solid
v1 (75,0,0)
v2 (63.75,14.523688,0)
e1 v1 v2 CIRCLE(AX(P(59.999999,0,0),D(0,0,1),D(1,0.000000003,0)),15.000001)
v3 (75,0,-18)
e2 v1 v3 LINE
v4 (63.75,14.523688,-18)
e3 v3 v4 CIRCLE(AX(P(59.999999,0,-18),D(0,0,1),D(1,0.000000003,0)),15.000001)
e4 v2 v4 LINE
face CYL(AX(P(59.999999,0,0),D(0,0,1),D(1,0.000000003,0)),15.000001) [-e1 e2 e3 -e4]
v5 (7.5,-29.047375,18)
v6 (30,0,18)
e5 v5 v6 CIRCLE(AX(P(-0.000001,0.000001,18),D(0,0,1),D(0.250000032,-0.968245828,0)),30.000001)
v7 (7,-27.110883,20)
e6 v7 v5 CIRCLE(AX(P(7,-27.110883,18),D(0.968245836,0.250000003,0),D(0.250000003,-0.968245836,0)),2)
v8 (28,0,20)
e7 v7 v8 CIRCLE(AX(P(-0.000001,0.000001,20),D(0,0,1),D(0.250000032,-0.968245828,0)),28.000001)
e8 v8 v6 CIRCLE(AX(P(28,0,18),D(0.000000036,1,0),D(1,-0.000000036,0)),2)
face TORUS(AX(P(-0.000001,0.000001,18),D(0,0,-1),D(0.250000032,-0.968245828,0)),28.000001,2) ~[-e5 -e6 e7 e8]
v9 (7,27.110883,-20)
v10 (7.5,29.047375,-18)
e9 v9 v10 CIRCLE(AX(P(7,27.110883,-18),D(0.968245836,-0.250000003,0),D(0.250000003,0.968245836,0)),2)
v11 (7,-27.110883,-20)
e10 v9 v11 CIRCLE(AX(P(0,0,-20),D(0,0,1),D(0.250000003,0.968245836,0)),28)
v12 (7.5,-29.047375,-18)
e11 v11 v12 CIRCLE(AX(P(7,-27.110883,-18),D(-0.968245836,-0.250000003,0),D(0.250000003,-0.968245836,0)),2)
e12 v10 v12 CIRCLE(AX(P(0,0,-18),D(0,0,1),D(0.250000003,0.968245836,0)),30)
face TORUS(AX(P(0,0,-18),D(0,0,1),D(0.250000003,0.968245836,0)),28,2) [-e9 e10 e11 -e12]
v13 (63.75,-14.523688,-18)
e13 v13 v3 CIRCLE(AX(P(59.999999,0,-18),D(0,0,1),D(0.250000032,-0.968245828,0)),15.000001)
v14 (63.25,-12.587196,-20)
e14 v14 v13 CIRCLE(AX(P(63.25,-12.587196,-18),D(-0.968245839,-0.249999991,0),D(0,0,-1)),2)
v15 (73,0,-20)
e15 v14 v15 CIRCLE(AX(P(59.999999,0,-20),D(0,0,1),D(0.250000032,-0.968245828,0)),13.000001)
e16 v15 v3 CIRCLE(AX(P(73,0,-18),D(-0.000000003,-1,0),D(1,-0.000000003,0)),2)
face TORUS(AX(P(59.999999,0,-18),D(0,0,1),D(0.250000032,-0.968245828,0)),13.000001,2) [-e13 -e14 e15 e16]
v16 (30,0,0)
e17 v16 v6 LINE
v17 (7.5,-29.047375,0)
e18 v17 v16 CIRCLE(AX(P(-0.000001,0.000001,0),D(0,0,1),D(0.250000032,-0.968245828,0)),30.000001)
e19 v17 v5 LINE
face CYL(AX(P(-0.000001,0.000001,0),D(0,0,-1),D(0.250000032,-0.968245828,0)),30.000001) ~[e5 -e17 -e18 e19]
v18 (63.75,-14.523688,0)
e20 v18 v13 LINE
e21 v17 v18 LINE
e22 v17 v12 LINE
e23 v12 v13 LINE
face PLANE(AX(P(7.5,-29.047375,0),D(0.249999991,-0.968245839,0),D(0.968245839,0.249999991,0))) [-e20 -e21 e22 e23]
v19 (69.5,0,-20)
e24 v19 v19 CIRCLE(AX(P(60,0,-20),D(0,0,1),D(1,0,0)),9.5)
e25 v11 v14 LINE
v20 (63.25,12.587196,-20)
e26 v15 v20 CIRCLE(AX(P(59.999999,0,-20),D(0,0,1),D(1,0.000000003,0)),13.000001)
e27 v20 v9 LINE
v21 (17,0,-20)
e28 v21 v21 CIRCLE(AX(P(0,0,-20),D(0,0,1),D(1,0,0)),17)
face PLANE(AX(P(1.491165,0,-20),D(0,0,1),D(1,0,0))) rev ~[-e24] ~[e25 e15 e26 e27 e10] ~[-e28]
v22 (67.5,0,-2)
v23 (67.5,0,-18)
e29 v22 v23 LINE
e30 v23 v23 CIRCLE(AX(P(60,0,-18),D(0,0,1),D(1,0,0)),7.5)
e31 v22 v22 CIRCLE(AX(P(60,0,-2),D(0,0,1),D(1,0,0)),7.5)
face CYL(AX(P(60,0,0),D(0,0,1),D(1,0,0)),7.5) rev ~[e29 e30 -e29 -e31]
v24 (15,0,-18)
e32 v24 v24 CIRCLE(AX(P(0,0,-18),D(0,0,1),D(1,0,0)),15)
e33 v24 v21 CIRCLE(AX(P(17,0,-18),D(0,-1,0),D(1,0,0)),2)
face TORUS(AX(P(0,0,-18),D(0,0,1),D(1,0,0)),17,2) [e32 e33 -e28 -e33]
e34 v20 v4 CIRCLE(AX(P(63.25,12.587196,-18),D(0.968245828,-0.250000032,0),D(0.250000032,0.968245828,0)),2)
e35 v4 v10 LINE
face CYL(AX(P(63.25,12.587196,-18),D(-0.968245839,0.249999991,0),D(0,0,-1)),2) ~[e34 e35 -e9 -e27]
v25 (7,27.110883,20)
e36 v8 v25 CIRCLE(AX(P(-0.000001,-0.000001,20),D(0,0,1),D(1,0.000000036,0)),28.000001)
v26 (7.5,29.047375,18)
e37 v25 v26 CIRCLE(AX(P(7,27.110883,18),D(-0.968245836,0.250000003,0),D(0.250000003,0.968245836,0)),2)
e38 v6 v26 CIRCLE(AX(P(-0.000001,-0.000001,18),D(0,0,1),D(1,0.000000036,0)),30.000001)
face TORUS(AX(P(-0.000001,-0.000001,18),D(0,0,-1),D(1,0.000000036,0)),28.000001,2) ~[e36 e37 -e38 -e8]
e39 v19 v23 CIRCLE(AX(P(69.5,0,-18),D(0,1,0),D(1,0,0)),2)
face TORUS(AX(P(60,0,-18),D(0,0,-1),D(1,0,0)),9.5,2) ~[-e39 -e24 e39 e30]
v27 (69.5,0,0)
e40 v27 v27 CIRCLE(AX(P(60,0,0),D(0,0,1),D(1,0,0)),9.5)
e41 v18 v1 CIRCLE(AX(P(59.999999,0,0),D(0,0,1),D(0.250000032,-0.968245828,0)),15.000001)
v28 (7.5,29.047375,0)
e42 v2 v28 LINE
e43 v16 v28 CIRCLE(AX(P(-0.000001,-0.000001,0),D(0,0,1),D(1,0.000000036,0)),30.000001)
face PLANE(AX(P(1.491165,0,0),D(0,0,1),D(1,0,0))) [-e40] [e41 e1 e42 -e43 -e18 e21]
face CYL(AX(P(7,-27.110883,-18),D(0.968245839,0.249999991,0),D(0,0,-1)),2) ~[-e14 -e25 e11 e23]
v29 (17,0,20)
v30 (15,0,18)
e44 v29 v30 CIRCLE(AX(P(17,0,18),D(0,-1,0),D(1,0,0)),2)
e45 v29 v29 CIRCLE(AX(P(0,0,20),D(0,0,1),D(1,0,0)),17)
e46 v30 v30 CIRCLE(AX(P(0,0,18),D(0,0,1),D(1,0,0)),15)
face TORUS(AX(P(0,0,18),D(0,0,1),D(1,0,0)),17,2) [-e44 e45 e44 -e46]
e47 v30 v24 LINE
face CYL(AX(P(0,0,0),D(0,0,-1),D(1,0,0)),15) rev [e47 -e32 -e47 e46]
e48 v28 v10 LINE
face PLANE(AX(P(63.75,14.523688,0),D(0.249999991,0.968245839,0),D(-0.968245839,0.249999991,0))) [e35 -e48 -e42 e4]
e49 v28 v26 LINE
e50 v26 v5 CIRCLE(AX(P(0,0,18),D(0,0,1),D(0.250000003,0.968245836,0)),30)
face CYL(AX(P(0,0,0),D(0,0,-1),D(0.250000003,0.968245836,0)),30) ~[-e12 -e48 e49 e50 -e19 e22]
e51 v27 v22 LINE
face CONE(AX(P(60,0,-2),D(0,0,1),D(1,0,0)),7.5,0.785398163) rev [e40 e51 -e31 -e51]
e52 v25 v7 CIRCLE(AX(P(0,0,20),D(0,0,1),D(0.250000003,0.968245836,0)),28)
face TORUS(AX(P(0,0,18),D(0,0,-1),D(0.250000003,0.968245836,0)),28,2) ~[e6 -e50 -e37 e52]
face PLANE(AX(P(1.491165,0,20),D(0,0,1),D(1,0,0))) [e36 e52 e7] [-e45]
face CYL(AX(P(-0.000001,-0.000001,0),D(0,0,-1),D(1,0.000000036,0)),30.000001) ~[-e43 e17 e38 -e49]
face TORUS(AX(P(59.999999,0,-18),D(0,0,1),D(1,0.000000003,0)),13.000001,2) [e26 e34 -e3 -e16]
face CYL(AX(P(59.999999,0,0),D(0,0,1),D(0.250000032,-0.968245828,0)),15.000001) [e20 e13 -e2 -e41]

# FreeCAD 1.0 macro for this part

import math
import FreeCAD as App
import Part
import Sketcher

V = App.Vector


def edges_at(feature, points):
    """Names of the edges that pass closest to the given points."""
    edges = feature.Shape.Edges
    near = lambda p: min(range(len(edges)), key=lambda i: edges[i].distToShape(Part.Vertex(*p))[0])
    return sorted({f"Edge{near(p) + 1}" for p in points})

doc = App.newDocument("Part")
body = doc.addObject("PartDesign::Body", "Body")

# Sketch on XY plane
sketch1 = doc.addObject("Sketcher::SketchObject", "Sketch")
body.addObject(sketch1)
sketch1.AttachmentSupport = (doc.XY_Plane, [""])
sketch1.MapMode = "FlatFace"
sketch1.addGeometry([
    Part.ArcOfCircle(Part.Circle(V(0, 0, 0), V(0, 0, 1), 30), math.radians(75.522488), math.radians(284.477512)),  # 0
    Part.LineSegment(V(7.5, -29.047375, 0), V(63.75, -14.523688, 0)),  # 1
    Part.ArcOfCircle(Part.Circle(V(59.999999, 0, 0), V(0, 0, 1), 15.000001), math.radians(-75.522486), math.radians(0)),  # 2
    Part.ArcOfCircle(Part.Circle(V(59.999999, 0, 0), V(0, 0, 1), 15.000001), math.radians(0), math.radians(75.522486)),  # 3
    Part.LineSegment(V(63.75, 14.523688, 0), V(7.5, 29.047375, 0)),  # 4
    Part.Circle(V(0, 0, 0), V(0, 0, 1), 15),  # 5
    Part.Circle(V(60, 0, 0), V(0, 0, 1), 7.5),  # 6
], False)
sketch1.addConstraint([
    Sketcher.Constraint("Tangent", 0, 2, 1, 1),
    Sketcher.Constraint("Tangent", 1, 2, 2, 1),
    Sketcher.Constraint("Tangent", 2, 2, 3, 1),
    Sketcher.Constraint("Tangent", 3, 2, 4, 1),
    Sketcher.Constraint("Tangent", 4, 2, 0, 1),
    Sketcher.Constraint("Coincident", 0, 3, -1, 1),
    Sketcher.Constraint("Coincident", 5, 3, -1, 1),
    Sketcher.Constraint("Coincident", 6, 3, 2, 3),
    Sketcher.Constraint("Equal", 2, 3),
    Sketcher.Constraint("Equal", 3, 5),
    Sketcher.Constraint("PointOnObject", 2, 3, -1),
    Sketcher.Constraint("PointOnObject", 2, 2, -1),
    Sketcher.Constraint("Diameter", 5, 30.0),
    Sketcher.Constraint("Diameter", 6, 15.0),
    Sketcher.Constraint("Radius", 0, 30.0),
    Sketcher.Constraint("DistanceX", -1, 1, 2, 3, 59.999999),
])
pad1 = doc.addObject("PartDesign::Pad", "Pad")
body.addObject(pad1)
pad1.Profile = sketch1
pad1.Length = 20
pad1.Reversed = True

# Sketch on XY plane
sketch2 = doc.addObject("Sketcher::SketchObject", "Sketch001")
body.addObject(sketch2)
sketch2.AttachmentSupport = (doc.XY_Plane, [""])
sketch2.MapMode = "FlatFace"
sketch2.addGeometry([
    Part.ArcOfCircle(Part.Circle(V(-0.000001, 0.000001, 0), V(0, 0, 1), 30.000001), math.radians(-75.522486), math.radians(-0.000002)),
    Part.ArcOfCircle(Part.Circle(V(-0.000001, -0.000001, 0), V(0, 0, 1), 30.000001), math.radians(0.000002), math.radians(75.522486)),
    Part.ArcOfCircle(Part.Circle(V(0, 0, 0), V(0, 0, 1), 30), math.radians(75.522488), math.radians(284.477512)),
    Part.Circle(V(0, 0, 0), V(0, 0, 1), 15),
], False)
sketch2.addConstraint([
    Sketcher.Constraint("Tangent", 0, 2, 1, 1),
    Sketcher.Constraint("Tangent", 1, 2, 2, 1),
    Sketcher.Constraint("Tangent", 2, 2, 0, 1),
    Sketcher.Constraint("Coincident", 0, 3, -1, 1),
    Sketcher.Constraint("Coincident", 3, 3, -1, 1),
    Sketcher.Constraint("PointOnObject", 0, 2, -1),
    Sketcher.Constraint("Vertical", 1, 2, 2, 2),
    Sketcher.Constraint("Diameter", 3, 30.0),
    Sketcher.Constraint("Radius", 0, 30.000001),
    Sketcher.Constraint("DistanceX", -1, 1, 1, 2, 7.5),
])
pad2 = doc.addObject("PartDesign::Pad", "Pad001")
body.addObject(pad2)
pad2.Profile = sketch2
pad2.Length = 20
doc.recompute()

fillet = doc.addObject("PartDesign::Fillet", "Fillet")
body.addObject(fillet)
fillet.Base = (pad2, edges_at(pad2, [
    (-30, 0, 20),
    (-15, 0, 20),
    (-30, 0, -20),
    (35.625, -21.786, -20),
    (71.859, 9.186, -20),
    (35.625, 21.786, -20),
    (-15, 0, -20),
    (52.5, 0, -20),
]))
fillet.Radius = 2
doc.recompute()

chamfer = doc.addObject("PartDesign::Chamfer", "Chamfer")
body.addObject(chamfer)
chamfer.Base = (fillet, edges_at(fillet, [(67.5, 0, -9), (52.5, 0, -18), (52.5, 0, 0)]))
chamfer.Size = 2

doc.recompute()
